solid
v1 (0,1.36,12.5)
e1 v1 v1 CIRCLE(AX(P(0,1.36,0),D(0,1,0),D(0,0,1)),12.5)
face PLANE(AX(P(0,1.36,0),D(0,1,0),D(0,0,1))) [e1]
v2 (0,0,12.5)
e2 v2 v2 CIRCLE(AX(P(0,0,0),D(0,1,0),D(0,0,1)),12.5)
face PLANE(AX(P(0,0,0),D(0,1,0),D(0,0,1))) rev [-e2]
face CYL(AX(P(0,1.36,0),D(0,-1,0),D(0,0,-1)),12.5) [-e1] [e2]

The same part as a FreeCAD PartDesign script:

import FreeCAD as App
import Part
import Sketcher
from FreeCAD import Vector
Q = App.Units.Quantity

doc = App.newDocument("Part")
body = doc.addObject("PartDesign::Body", "Body")

sketch1 = body.newObject("Sketcher::SketchObject", "Sketch")
sketch1.AttachmentSupport = (doc.getObject("XZ_Plane"), [""])
sketch1.MapMode = "FlatFace"
sketch1.addGeometry(Part.Circle(Vector(0, 0, 0), Vector(0, 0, 1), 12.5), False)
sketch1.addConstraint([
    Sketcher.Constraint("Coincident", 0, 3, -1, 1),
    Sketcher.Constraint("Diameter", 0, Q("25 mm")),
])
pad1 = body.newObject("PartDesign::Pad", "Pad")
pad1.Profile = sketch1
pad1.Length = 1.36
pad1.Reversed = True

doc.recompute()
